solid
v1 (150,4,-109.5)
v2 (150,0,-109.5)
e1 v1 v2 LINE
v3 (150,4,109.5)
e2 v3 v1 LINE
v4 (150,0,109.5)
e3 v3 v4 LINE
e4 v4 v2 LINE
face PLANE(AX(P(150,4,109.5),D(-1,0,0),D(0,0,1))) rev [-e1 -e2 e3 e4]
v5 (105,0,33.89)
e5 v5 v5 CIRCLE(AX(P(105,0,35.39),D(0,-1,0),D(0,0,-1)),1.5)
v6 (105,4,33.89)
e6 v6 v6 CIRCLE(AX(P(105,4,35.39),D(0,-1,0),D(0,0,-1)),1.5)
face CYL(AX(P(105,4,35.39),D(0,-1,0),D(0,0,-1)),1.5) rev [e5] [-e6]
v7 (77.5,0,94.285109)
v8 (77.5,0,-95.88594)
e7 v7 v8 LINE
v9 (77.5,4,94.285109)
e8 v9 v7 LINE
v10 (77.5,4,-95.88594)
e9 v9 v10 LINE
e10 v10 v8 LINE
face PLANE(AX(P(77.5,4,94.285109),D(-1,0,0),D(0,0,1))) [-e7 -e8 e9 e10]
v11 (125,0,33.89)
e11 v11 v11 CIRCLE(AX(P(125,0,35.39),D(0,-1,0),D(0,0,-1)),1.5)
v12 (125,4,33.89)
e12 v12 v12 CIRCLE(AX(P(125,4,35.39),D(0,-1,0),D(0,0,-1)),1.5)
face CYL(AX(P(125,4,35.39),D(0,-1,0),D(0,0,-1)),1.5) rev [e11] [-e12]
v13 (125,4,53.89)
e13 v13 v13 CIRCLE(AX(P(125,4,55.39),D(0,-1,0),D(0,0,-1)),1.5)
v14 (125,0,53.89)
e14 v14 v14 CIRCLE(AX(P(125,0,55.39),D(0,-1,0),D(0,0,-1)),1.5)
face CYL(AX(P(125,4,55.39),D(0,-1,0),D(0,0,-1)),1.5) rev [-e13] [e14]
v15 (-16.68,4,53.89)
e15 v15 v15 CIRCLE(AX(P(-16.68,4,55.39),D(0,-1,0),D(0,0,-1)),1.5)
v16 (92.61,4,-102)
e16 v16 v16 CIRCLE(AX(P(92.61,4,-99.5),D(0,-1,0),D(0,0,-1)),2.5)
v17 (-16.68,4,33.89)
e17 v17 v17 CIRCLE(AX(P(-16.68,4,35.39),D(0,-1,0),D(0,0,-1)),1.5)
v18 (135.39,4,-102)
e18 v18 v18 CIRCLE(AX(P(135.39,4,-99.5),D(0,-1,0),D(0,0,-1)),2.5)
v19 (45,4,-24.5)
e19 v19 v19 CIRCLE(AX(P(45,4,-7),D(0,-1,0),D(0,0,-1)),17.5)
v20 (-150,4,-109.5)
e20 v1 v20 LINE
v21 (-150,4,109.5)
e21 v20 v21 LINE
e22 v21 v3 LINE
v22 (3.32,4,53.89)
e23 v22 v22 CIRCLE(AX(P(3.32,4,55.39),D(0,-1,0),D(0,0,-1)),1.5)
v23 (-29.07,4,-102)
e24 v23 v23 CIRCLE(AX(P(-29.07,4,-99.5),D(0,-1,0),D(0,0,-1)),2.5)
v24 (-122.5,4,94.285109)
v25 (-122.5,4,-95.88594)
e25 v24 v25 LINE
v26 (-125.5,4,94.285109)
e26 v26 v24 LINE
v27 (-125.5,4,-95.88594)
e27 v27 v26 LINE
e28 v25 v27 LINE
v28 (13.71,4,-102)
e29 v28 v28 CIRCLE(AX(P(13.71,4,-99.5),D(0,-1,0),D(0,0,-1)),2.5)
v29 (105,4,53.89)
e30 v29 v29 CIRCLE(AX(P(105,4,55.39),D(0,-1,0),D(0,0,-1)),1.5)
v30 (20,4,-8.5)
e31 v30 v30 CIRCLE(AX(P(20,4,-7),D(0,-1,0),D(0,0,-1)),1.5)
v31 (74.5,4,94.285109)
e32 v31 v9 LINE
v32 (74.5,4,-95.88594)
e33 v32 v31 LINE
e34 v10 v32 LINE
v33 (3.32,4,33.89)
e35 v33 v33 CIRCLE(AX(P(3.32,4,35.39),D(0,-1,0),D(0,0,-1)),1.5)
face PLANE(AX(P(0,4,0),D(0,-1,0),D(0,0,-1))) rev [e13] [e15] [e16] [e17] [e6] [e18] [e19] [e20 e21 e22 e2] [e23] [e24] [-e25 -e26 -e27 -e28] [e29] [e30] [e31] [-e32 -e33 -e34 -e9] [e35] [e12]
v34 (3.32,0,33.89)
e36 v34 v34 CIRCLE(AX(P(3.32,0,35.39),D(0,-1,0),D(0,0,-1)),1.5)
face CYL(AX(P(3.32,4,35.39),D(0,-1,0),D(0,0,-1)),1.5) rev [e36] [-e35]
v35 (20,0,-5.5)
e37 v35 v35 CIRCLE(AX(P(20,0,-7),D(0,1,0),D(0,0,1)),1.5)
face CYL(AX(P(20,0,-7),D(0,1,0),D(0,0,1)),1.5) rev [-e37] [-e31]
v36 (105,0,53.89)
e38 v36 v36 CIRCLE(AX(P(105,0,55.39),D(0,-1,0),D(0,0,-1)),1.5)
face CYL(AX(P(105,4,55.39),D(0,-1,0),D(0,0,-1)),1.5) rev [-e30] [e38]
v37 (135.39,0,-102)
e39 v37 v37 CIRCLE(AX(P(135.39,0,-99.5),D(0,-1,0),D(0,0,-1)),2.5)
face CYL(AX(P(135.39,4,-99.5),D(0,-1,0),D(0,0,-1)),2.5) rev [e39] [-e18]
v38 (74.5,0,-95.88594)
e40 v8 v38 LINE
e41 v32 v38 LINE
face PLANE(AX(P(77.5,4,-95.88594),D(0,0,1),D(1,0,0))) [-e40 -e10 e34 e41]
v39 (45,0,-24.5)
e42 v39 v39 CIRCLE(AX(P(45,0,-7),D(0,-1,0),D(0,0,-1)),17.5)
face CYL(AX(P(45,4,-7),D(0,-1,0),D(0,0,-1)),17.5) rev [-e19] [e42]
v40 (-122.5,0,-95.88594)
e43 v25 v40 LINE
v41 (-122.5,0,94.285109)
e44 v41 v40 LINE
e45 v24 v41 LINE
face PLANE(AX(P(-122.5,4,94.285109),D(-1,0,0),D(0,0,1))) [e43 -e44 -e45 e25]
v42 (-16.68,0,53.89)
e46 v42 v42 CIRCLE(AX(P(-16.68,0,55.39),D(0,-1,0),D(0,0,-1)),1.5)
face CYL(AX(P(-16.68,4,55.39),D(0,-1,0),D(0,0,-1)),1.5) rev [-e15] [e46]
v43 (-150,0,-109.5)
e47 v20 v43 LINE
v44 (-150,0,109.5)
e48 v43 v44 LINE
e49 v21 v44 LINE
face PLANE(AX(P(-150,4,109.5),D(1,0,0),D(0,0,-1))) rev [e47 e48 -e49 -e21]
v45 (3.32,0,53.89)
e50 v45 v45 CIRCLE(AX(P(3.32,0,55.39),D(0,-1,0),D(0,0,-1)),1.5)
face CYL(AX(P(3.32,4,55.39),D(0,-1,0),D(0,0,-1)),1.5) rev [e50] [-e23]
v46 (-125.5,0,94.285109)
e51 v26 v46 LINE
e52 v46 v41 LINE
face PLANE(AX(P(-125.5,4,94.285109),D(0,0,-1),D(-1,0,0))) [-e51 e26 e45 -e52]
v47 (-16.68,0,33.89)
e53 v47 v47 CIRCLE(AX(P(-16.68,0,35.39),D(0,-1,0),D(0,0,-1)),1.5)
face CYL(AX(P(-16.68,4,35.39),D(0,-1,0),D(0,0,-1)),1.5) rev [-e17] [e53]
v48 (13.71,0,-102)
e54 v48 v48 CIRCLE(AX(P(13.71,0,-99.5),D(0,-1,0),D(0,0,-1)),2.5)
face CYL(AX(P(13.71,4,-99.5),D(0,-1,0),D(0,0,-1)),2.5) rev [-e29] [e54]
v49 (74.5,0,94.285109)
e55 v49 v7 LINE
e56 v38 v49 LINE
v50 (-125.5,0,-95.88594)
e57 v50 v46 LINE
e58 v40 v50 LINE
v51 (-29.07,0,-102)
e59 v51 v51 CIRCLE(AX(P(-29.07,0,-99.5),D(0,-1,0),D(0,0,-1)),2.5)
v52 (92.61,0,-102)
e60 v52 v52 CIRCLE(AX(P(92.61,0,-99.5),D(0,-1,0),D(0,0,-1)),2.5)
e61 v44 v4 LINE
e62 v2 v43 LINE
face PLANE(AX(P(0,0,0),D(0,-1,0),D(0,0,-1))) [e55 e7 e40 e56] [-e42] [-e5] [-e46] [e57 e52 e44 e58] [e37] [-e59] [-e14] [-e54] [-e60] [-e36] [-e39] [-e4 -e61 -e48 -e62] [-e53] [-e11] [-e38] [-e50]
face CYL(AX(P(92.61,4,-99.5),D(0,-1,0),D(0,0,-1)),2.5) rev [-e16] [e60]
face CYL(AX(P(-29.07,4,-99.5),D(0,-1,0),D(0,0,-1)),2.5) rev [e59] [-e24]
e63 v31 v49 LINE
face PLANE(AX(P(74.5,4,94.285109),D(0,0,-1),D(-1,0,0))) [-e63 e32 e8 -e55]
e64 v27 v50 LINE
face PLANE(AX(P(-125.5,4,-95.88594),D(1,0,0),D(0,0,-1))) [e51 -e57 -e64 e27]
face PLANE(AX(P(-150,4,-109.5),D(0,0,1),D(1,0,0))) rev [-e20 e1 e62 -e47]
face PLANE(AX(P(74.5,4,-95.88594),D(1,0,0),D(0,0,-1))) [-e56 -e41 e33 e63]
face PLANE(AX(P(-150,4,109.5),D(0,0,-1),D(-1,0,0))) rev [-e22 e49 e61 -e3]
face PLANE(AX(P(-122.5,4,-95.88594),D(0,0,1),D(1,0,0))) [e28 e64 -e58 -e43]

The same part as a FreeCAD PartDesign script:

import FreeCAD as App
import Part
import Sketcher
from FreeCAD import Vector
Q = App.Units.Quantity

doc = App.newDocument("Part")
body = doc.addObject("PartDesign::Body", "Body")

sketch1 = body.newObject("Sketcher::SketchObject", "Sketch")
sketch1.AttachmentSupport = (doc.getObject("XZ_Plane"), [""])
sketch1.MapMode = "FlatFace"
sketch1.addGeometry(Part.LineSegment(Vector(-150, -109.5, 0), Vector(-150, 109.5, 0)), False)
sketch1.addGeometry(Part.LineSegment(Vector(-150, 109.5, 0), Vector(150, 109.5, 0)), False)
sketch1.addGeometry(Part.LineSegment(Vector(150, 109.5, 0), Vector(150, -109.5, 0)), False)
sketch1.addGeometry(Part.LineSegment(Vector(150, -109.5, 0), Vector(-150, -109.5, 0)), False)
sketch1.addGeometry(Part.LineSegment(Vector(-122.5, 94.285109, 0), Vector(-125.5, 94.285109, 0)), False)
sketch1.addGeometry(Part.LineSegment(Vector(-125.5, 94.285109, 0), Vector(-125.5, -95.88594, 0)), False)
sketch1.addGeometry(Part.LineSegment(Vector(-125.5, -95.88594, 0), Vector(-122.5, -95.88594, 0)), False)
sketch1.addGeometry(Part.LineSegment(Vector(-122.5, -95.88594, 0), Vector(-122.5, 94.285109, 0)), False)
sketch1.addGeometry(Part.LineSegment(Vector(77.5, 94.285109, 0), Vector(74.5, 94.285109, 0)), False)
sketch1.addGeometry(Part.LineSegment(Vector(74.5, 94.285109, 0), Vector(74.5, -95.88594, 0)), False)
sketch1.addGeometry(Part.LineSegment(Vector(74.5, -95.88594, 0), Vector(77.5, -95.88594, 0)), False)
sketch1.addGeometry(Part.LineSegment(Vector(77.5, -95.88594, 0), Vector(77.5, 94.285109, 0)), False)
sketch1.addConstraint(Sketcher.Constraint("Coincident", 0, 2, 1, 1))
sketch1.addConstraint(Sketcher.Constraint("Coincident", 1, 2, 2, 1))
sketch1.addConstraint(Sketcher.Constraint("Coincident", 2, 2, 3, 1))
sketch1.addConstraint(Sketcher.Constraint("Coincident", 3, 2, 0, 1))
sketch1.addConstraint(Sketcher.Constraint("Coincident", 4, 2, 5, 1))
sketch1.addConstraint(Sketcher.Constraint("Coincident", 5, 2, 6, 1))
sketch1.addConstraint(Sketcher.Constraint("Coincident", 6, 2, 7, 1))
sketch1.addConstraint(Sketcher.Constraint("Coincident", 7, 2, 4, 1))
sketch1.addConstraint(Sketcher.Constraint("Coincident", 8, 2, 9, 1))
sketch1.addConstraint(Sketcher.Constraint("Coincident", 9, 2, 10, 1))
sketch1.addConstraint(Sketcher.Constraint("Coincident", 10, 2, 11, 1))
sketch1.addConstraint(Sketcher.Constraint("Coincident", 11, 2, 8, 1))
sketch1.addConstraint(Sketcher.Constraint("Vertical", 0))
sketch1.addConstraint(Sketcher.Constraint("Horizontal", 1))
sketch1.addConstraint(Sketcher.Constraint("Vertical", 2))
sketch1.addConstraint(Sketcher.Constraint("Horizontal", 3))
sketch1.addConstraint(Sketcher.Constraint("Horizontal", 4))
sketch1.addConstraint(Sketcher.Constraint("Vertical", 5))
sketch1.addConstraint(Sketcher.Constraint("Horizontal", 6))
sketch1.addConstraint(Sketcher.Constraint("Vertical", 7))
sketch1.addConstraint(Sketcher.Constraint("Horizontal", 8))
sketch1.addConstraint(Sketcher.Constraint("Vertical", 9))
sketch1.addConstraint(Sketcher.Constraint("Horizontal", 10))
sketch1.addConstraint(Sketcher.Constraint("Vertical", 11))
sketch1.addConstraint(Sketcher.Constraint("Symmetric", 0, 2, 2, 2, -1, 1))
sketch1.addConstraint(Sketcher.Constraint("Horizontal", 7, 2, 8, 2))
sketch1.addConstraint(Sketcher.Constraint("Horizontal", 6, 2, 9, 2))
sketch1.addConstraint(Sketcher.Constraint("Equal", 6, 8))
sketch1.addConstraint(Sketcher.Constraint("DistanceX", 1, 1, 1, 2, Q("300 mm")))
sketch1.addConstraint(Sketcher.Constraint("DistanceX", 4, 2, 4, 1, Q("3 mm")))
sketch1.addConstraint(Sketcher.Constraint("DistanceY", 0, 1, 0, 2, Q("219 mm")))
sketch1.addConstraint(Sketcher.Constraint("DistanceX", 7, 2, 8, 2, Q("197 mm")))
sketch1.addConstraint(Sketcher.Constraint("DistanceX", 4, 2, -1, 1, Q("125.5 mm")))
sketch1.addConstraint(Sketcher.Constraint("DistanceY", 5, 2, 5, 1, Q("190.171048 mm")))
sketch1.addConstraint(Sketcher.Constraint("DistanceY", -1, 1, 4, 2, Q("94.285109 mm")))
pad1 = body.newObject("PartDesign::Pad", "Pad")
pad1.Profile = sketch1
pad1.Length = 4
pad1.Reversed = True

sketch2 = body.newObject("Sketcher::SketchObject", "Sketch001")
sketch2.AttachmentSupport = (doc.getObject("XZ_Plane"), [""])
sketch2.MapMode = "FlatFace"
sketch2.addGeometry(Part.Circle(Vector(45, -7, 0), Vector(0, 0, 1), 17.5), False)
sketch2.addConstraint(Sketcher.Constraint("Diameter", 0, Q("35 mm")))
sketch2.addConstraint(Sketcher.Constraint("DistanceX", -1, 1, 0, 3, Q("45 mm")))
sketch2.addConstraint(Sketcher.Constraint("DistanceY", 0, 3, -1, 1, Q("7 mm")))
pocket1 = body.newObject("PartDesign::Pocket", "Pocket")
pocket1.Profile = sketch2
pocket1.Type = "ThroughAll"

sketch3 = body.newObject("Sketcher::SketchObject", "Sketch002")
sketch3.AttachmentSupport = (doc.getObject("XZ_Plane"), [""])
sketch3.MapMode = "FlatFace"
sketch3.addGeometry(Part.Circle(Vector(125, 55.39, 0), Vector(0, 0, 1), 1.5), False)
sketch3.addGeometry(Part.Circle(Vector(125, 35.39, 0), Vector(0, 0, 1), 1.5), False)
sketch3.addGeometry(Part.Circle(Vector(105, 35.39, 0), Vector(0, 0, 1), 1.5), False)
sketch3.addGeometry(Part.Circle(Vector(105, 55.39, 0), Vector(0, 0, 1), 1.5), False)
sketch3.addConstraint(Sketcher.Constraint("Equal", 0, 1))
sketch3.addConstraint(Sketcher.Constraint("Equal", 1, 2))
sketch3.addConstraint(Sketcher.Constraint("Equal", 2, 3))
sketch3.addConstraint(Sketcher.Constraint("Horizontal", 1, 3, 2, 3))
sketch3.addConstraint(Sketcher.Constraint("Horizontal", 0, 3, 3, 3))
sketch3.addConstraint(Sketcher.Constraint("Vertical", 0, 3, 1, 3))
sketch3.addConstraint(Sketcher.Constraint("Vertical", 2, 3, 3, 3))
sketch3.addConstraint(Sketcher.Constraint("Diameter", 0, Q("3 mm")))
sketch3.addConstraint(Sketcher.Constraint("DistanceX", -1, 1, 0, 3, Q("125 mm")))
sketch3.addConstraint(Sketcher.Constraint("DistanceX", -1, 1, 2, 3, Q("105 mm")))
sketch3.addConstraint(Sketcher.Constraint("DistanceY", 1, 3, 0, 3, Q("20 mm")))
sketch3.addConstraint(Sketcher.Constraint("DistanceY", -1, 1, 0, 3, Q("55.39 mm")))
pocket2 = body.newObject("PartDesign::Pocket", "Pocket001")
pocket2.Profile = sketch3
pocket2.Type = "ThroughAll"
pocket2.Midplane = True

sketch4 = body.newObject("Sketcher::SketchObject", "Sketch003")
sketch4.AttachmentSupport = (doc.getObject("XZ_Plane"), [""])
sketch4.MapMode = "FlatFace"
sketch4.addGeometry(Part.Circle(Vector(3.32, 55.39, 0), Vector(0, 0, 1), 1.5), False)
sketch4.addGeometry(Part.Circle(Vector(3.32, 35.39, 0), Vector(0, 0, 1), 1.5), False)
sketch4.addGeometry(Part.Circle(Vector(-16.68, 35.39, 0), Vector(0, 0, 1), 1.5), False)
sketch4.addGeometry(Part.Circle(Vector(-16.68, 55.39, 0), Vector(0, 0, 1), 1.5), False)
sketch4.addConstraint(Sketcher.Constraint("Equal", 0, 1))
sketch4.addConstraint(Sketcher.Constraint("Equal", 1, 2))
sketch4.addConstraint(Sketcher.Constraint("Equal", 2, 3))
sketch4.addConstraint(Sketcher.Constraint("Horizontal", 1, 3, 2, 3))
sketch4.addConstraint(Sketcher.Constraint("Horizontal", 0, 3, 3, 3))
sketch4.addConstraint(Sketcher.Constraint("Vertical", 0, 3, 1, 3))
sketch4.addConstraint(Sketcher.Constraint("Vertical", 2, 3, 3, 3))
sketch4.addConstraint(Sketcher.Constraint("Diameter", 0, Q("3 mm")))
sketch4.addConstraint(Sketcher.Constraint("DistanceY", 1, 3, 0, 3, Q("20 mm")))
sketch4.addConstraint(Sketcher.Constraint("DistanceX", 2, 3, 1, 3, Q("20 mm")))
sketch4.addConstraint(Sketcher.Constraint("DistanceX", -1, 1, 0, 3, Q("3.32 mm")))
sketch4.addConstraint(Sketcher.Constraint("DistanceY", -1, 1, 0, 3, Q("55.39 mm")))
pocket3 = body.newObject("PartDesign::Pocket", "Pocket002")
pocket3.Profile = sketch4
pocket3.Type = "ThroughAll"
pocket3.Midplane = True

sketch5 = body.newObject("Sketcher::SketchObject", "Sketch004")
sketch5.AttachmentSupport = (doc.getObject("XZ_Plane"), [""])
sketch5.MapMode = "FlatFace"
sketch5.addGeometry(Part.Circle(Vector(135.39, -99.5, 0), Vector(0, 0, 1), 2.5), False)
sketch5.addGeometry(Part.Circle(Vector(92.61, -99.5, 0), Vector(0, 0, 1), 2.5), False)
sketch5.addConstraint(Sketcher.Constraint("Equal", 0, 1))
sketch5.addConstraint(Sketcher.Constraint("Horizontal", 0, 3, 1, 3))
sketch5.addConstraint(Sketcher.Constraint("Diameter", 0, Q("5 mm")))
sketch5.addConstraint(Sketcher.Constraint("DistanceY", 0, 3, -1, 1, Q("99.5 mm")))
sketch5.addConstraint(Sketcher.Constraint("DistanceX", -1, 1, 0, 3, Q("135.39 mm")))
sketch5.addConstraint(Sketcher.Constraint("DistanceX", -1, 1, 1, 3, Q("92.61 mm")))
pocket4 = body.newObject("PartDesign::Pocket", "Pocket003")
pocket4.Profile = sketch5
pocket4.Type = "ThroughAll"
pocket4.Midplane = True

sketch6 = body.newObject("Sketcher::SketchObject", "Sketch005")
sketch6.AttachmentSupport = (doc.getObject("XZ_Plane"), [""])
sketch6.MapMode = "FlatFace"
sketch6.addGeometry(Part.Circle(Vector(13.71, -99.5, 0), Vector(0, 0, 1), 2.5), False)
sketch6.addGeometry(Part.Circle(Vector(-29.07, -99.5, 0), Vector(0, 0, 1), 2.5), False)
sketch6.addConstraint(Sketcher.Constraint("Equal", 0, 1))
sketch6.addConstraint(Sketcher.Constraint("Horizontal", 0, 3, 1, 3))
sketch6.addConstraint(Sketcher.Constraint("Diameter", 0, Q("5 mm")))
sketch6.addConstraint(Sketcher.Constraint("DistanceY", 0, 3, -1, 1, Q("99.5 mm")))
sketch6.addConstraint(Sketcher.Constraint("DistanceX", -1, 1, 0, 3, Q("13.71 mm")))
sketch6.addConstraint(Sketcher.Constraint("DistanceX", 1, 3, -1, 1, Q("29.07 mm")))
pocket5 = body.newObject("PartDesign::Pocket", "Pocket004")
pocket5.Profile = sketch6
pocket5.Type = "ThroughAll"
pocket5.Midplane = True

sketch7 = body.newObject("Sketcher::SketchObject", "Sketch006")
sketch7.AttachmentSupport = (doc.getObject("XZ_Plane"), [""])
sketch7.MapMode = "FlatFace"
sketch7.AttachmentOffset = App.Placement(Vector(0, 0, -4), App.Rotation())
sketch7.addGeometry(Part.Circle(Vector(20, -7, 0), Vector(0, 0, 1), 1.5), False)
sketch7.addConstraint(Sketcher.Constraint("Diameter", 0, Q("3 mm")))
sketch7.addConstraint(Sketcher.Constraint("DistanceX", -1, 1, 0, 3, Q("20 mm")))
sketch7.addConstraint(Sketcher.Constraint("DistanceY", 0, 3, -1, 1, Q("7 mm")))
pocket6 = body.newObject("PartDesign::Pocket", "Pocket005")
pocket6.Profile = sketch7
pocket6.Type = "ThroughAll"
pocket6.Midplane = True

doc.recompute()
